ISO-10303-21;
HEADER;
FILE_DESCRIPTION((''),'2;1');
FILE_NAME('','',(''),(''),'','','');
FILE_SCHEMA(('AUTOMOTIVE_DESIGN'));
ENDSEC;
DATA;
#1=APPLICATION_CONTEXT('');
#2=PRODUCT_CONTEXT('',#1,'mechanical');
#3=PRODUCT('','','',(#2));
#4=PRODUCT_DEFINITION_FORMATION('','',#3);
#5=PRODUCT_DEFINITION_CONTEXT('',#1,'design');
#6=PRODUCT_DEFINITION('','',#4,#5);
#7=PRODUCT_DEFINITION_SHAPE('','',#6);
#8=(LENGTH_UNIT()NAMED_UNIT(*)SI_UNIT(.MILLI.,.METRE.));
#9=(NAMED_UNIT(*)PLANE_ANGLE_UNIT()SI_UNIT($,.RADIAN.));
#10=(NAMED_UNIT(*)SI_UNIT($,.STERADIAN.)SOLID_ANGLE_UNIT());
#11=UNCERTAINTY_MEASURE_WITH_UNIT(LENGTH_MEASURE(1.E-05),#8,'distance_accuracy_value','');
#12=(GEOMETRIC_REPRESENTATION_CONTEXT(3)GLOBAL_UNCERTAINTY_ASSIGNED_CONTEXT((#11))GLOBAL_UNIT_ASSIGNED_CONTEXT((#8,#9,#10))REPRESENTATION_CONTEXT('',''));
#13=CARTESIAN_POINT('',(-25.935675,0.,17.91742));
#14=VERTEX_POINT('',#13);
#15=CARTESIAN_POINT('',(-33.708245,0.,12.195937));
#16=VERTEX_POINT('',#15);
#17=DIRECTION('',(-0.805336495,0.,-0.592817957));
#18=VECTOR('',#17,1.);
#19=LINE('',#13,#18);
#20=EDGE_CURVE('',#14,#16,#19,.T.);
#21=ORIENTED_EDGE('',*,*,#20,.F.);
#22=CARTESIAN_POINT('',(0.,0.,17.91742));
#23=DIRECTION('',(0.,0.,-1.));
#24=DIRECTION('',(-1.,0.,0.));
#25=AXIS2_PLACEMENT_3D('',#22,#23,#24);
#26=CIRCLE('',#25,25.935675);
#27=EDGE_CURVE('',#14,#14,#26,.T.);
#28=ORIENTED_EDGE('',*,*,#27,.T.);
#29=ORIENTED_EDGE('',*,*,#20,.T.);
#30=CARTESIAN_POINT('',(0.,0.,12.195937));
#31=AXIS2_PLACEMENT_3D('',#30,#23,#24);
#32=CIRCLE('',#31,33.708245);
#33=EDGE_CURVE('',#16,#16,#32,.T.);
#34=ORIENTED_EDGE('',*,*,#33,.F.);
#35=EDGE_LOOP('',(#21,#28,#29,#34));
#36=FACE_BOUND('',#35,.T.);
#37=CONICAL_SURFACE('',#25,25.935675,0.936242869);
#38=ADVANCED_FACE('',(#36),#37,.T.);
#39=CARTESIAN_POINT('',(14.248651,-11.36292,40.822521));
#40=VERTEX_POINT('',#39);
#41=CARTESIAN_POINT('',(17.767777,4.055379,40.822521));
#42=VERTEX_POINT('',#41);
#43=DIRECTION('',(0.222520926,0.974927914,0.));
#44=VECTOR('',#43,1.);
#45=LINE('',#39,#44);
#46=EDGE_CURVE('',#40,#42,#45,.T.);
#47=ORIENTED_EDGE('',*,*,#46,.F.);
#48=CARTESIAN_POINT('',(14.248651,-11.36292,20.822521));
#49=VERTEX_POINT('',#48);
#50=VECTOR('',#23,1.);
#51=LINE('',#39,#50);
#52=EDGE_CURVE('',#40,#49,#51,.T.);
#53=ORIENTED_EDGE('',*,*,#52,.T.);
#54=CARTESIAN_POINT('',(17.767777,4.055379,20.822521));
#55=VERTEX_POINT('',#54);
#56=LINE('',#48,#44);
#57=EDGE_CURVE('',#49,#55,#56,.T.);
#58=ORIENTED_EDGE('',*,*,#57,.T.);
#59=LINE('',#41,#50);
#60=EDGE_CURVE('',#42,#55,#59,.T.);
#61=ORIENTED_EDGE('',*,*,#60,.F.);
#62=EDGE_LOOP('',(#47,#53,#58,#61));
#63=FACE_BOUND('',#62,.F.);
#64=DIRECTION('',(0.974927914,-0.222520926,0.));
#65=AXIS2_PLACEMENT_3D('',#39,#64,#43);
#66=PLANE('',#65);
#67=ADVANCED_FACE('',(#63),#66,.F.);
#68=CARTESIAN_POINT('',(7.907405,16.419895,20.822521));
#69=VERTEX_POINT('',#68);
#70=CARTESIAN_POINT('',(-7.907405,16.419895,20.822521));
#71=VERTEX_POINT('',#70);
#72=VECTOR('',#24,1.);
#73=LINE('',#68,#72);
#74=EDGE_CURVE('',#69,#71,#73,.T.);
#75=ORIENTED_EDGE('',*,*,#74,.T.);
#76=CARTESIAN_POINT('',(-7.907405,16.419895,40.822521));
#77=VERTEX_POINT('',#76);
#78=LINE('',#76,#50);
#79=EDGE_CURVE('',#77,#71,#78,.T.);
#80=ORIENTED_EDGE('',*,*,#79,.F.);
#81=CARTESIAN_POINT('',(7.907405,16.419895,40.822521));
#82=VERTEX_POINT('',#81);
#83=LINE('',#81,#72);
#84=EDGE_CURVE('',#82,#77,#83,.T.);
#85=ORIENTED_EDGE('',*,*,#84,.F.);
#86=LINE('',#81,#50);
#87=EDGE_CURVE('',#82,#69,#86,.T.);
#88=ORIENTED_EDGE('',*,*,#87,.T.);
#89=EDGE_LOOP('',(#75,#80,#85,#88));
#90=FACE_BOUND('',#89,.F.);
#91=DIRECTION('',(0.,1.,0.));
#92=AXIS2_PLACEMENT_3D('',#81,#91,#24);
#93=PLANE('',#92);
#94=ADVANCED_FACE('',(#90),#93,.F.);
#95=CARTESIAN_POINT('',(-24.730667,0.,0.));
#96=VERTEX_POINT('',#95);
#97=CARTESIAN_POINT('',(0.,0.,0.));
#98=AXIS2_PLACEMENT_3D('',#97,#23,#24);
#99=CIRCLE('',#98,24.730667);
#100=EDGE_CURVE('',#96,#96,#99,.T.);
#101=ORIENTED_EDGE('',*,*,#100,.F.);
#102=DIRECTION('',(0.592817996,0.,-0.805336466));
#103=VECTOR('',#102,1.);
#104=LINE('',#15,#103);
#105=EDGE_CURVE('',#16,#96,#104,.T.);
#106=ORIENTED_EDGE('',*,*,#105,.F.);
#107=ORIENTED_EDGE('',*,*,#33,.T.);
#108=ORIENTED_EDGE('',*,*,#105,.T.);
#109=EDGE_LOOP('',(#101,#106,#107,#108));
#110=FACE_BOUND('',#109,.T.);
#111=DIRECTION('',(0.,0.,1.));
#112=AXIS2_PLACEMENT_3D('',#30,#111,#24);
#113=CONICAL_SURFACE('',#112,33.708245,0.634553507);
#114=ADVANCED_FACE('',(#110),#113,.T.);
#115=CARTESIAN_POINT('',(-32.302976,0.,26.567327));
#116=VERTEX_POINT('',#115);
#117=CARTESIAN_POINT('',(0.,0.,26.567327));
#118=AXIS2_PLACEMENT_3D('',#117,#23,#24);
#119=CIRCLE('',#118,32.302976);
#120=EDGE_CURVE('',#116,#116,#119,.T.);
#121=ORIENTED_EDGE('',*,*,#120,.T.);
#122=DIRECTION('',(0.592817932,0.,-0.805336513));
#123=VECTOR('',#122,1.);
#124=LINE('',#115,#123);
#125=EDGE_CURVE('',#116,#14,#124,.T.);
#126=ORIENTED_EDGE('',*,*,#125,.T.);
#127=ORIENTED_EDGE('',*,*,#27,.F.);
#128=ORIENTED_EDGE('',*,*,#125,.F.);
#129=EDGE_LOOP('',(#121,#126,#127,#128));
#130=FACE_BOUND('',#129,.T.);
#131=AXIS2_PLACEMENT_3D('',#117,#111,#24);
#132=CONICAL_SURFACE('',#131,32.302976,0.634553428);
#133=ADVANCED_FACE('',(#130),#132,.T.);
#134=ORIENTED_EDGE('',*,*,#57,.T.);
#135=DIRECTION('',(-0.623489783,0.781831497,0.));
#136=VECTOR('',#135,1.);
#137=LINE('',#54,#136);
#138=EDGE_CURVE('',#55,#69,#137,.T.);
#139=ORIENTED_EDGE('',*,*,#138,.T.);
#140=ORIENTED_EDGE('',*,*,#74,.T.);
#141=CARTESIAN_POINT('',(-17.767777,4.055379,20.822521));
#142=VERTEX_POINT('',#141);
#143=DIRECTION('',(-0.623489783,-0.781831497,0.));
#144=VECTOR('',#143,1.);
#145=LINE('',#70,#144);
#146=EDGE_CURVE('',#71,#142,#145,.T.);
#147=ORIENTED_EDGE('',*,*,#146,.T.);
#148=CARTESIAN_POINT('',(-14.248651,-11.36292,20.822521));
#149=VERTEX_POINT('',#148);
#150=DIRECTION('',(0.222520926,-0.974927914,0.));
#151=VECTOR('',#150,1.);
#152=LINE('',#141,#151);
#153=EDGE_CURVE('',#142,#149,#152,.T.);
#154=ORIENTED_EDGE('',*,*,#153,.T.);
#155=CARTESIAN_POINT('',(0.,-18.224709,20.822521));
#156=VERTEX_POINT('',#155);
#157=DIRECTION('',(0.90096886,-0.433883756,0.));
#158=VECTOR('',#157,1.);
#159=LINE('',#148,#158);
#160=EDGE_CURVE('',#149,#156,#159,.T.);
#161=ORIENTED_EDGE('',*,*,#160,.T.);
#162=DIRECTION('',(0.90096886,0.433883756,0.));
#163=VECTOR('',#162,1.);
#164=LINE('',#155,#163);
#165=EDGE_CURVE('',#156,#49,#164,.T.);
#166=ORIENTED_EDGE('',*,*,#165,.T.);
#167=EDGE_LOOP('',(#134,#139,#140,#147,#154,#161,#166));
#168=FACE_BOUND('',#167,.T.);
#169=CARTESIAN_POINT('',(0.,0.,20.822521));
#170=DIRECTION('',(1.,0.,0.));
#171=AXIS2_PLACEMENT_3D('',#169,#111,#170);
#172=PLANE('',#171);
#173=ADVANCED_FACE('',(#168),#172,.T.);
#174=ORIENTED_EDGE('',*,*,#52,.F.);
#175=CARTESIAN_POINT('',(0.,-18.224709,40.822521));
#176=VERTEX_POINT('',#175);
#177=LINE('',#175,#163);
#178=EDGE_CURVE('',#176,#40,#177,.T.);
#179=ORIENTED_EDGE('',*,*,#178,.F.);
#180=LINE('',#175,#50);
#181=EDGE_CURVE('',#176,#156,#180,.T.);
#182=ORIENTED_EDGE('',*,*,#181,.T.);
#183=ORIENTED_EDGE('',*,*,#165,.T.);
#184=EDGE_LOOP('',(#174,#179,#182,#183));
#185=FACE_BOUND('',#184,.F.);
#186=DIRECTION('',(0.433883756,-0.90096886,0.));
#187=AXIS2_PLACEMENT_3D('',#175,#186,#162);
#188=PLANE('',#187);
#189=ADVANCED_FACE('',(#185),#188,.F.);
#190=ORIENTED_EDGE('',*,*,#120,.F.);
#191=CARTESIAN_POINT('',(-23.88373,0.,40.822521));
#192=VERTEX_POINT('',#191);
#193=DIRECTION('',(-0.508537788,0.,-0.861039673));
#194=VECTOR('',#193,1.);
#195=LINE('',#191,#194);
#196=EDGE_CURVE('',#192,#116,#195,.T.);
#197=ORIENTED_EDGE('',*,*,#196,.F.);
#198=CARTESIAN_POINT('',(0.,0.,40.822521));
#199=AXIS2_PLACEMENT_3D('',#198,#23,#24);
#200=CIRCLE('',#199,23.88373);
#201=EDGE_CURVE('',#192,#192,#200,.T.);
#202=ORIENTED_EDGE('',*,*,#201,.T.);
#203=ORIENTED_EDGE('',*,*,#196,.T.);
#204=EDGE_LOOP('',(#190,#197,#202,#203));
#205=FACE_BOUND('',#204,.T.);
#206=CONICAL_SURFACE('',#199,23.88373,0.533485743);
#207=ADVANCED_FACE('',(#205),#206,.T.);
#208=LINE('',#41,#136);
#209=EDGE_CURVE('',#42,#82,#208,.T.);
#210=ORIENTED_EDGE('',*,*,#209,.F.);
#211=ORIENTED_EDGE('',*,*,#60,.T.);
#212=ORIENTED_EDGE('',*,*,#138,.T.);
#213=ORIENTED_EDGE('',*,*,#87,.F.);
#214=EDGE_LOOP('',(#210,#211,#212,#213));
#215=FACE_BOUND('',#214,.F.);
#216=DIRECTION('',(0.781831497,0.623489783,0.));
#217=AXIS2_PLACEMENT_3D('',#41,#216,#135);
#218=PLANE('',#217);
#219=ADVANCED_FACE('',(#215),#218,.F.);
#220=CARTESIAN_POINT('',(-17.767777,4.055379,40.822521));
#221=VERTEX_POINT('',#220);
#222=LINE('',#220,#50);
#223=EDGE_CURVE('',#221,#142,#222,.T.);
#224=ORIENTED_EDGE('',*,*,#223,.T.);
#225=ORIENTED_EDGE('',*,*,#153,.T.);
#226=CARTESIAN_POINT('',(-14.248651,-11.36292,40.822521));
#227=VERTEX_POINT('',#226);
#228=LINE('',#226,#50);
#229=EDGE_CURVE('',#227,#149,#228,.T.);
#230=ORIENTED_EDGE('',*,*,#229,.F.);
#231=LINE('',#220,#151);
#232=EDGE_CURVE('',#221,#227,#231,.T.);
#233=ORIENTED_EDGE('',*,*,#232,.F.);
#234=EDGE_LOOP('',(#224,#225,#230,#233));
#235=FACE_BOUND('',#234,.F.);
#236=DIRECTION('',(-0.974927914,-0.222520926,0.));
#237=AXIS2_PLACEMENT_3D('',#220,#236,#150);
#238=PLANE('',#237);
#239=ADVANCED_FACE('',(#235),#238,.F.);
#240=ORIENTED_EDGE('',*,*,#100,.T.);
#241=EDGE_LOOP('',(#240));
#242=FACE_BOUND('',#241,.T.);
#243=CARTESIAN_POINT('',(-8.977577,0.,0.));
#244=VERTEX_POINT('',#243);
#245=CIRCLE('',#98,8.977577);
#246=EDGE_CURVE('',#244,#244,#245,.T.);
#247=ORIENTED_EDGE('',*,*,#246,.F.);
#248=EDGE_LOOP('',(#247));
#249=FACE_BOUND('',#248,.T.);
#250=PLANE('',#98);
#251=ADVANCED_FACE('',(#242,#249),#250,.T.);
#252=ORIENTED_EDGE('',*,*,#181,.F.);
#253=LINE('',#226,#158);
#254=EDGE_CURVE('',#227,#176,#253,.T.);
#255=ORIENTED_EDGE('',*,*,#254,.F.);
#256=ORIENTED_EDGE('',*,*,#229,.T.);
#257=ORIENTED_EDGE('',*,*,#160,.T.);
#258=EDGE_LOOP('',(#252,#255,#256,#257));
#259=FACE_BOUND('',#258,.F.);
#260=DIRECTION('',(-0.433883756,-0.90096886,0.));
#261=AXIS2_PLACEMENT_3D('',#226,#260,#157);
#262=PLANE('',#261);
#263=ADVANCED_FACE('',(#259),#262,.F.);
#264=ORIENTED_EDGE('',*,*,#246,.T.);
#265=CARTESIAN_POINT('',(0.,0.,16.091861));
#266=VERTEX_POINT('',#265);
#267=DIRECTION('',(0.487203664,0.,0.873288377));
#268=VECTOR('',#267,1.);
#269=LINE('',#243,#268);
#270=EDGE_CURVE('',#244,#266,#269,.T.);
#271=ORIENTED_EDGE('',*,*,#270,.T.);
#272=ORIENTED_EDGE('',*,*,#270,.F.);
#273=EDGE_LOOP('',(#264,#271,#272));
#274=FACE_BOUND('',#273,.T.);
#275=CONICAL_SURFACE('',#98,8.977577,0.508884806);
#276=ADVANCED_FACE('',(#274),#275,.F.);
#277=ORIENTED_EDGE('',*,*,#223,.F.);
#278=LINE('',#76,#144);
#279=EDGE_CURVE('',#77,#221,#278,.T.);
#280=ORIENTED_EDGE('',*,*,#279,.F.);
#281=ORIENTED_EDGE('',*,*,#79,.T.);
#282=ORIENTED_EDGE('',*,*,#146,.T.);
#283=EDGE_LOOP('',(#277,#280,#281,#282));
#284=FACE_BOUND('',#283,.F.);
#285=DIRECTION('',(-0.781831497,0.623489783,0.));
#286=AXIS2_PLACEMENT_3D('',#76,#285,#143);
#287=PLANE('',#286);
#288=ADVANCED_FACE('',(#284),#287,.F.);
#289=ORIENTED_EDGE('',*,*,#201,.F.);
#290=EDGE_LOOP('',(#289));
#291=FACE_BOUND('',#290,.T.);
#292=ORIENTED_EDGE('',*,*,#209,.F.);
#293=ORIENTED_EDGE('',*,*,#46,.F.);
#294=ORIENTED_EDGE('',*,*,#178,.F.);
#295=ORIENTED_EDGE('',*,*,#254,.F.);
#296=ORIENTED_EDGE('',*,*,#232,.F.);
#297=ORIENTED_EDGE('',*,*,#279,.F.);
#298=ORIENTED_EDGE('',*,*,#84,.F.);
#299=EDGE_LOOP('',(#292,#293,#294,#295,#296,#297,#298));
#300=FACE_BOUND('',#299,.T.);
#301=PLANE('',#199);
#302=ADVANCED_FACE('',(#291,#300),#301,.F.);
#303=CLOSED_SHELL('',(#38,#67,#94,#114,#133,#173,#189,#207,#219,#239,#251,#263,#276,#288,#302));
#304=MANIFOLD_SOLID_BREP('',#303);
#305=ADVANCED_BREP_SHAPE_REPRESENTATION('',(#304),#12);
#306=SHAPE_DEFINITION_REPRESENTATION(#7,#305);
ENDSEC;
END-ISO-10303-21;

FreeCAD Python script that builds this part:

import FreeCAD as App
import Part
import Sketcher
from FreeCAD import Vector
Q = App.Units.Quantity


def add_polygon(sketch, points):
    """Adds a closed chain of lines whose ends are joined by coincident constraints."""
    first, n = sketch.GeometryCount, len(points)
    for a, b in zip(points, points[1:] + points[:1]):
        sketch.addGeometry(Part.LineSegment(App.Vector(*a, 0), App.Vector(*b, 0)), False)
    for i in range(n):
        sketch.addConstraint(Sketcher.Constraint("Coincident", first + i, 2, first + (i + 1) % n, 1))

doc = App.newDocument("Part")
body = doc.addObject("PartDesign::Body", "Body")

sketch1 = doc.addObject("Sketcher::SketchObject", "Sketch")
body.addObject(sketch1)
sketch1.AttachmentSupport = (doc.XZ_Plane, [""])
sketch1.MapMode = "FlatFace"
add_polygon(sketch1, [(-9, 0), (0, 16), (0, 41), (-24, 41), (-32, 27), (-26, 18), (-34, 12), (-25, 0)])
sketch1.addConstraint([
    Sketcher.Constraint("Vertical", 1),
    Sketcher.Constraint("Horizontal", 2),
    Sketcher.Constraint("Horizontal", 7),
    Sketcher.Constraint("PointOnObject", 0, 2, -2),
    Sketcher.Constraint("PointOnObject", 6, 2, -1),
    Sketcher.Constraint("Perpendicular", 4, 5),
    Sketcher.Constraint("Perpendicular", 5, 6),
    Sketcher.Constraint("DistanceX", 2, 2, 2, 1, Q("23.88373 mm")),
    Sketcher.Constraint("DistanceX", 7, 1, 7, 2, Q("15.75309 mm")),
    Sketcher.Constraint("DistanceY", 1, 1, 1, 2, Q("24.73066 mm")),
    Sketcher.Constraint("DistanceX", 3, 2, 4, 2, Q("6.367301 mm")),
    Sketcher.Constraint("DistanceY", 4, 2, 2, 2, Q("22.905101 mm")),
    Sketcher.Constraint("DistanceX", 3, 2, 7, 2, Q("23.325399 mm")),
    Sketcher.Constraint("DistanceY", -1, 1, 0, 2, Q("16.091861 mm")),
    Sketcher.Constraint("DistanceX", 5, 2, 4, 2, Q("7.77257 mm")),
    Sketcher.Constraint("Distance", 0, Q("18.426744 mm")),
])
revolution = doc.addObject("PartDesign::Revolution", "Revolution")
body.addObject(revolution)
revolution.Profile = sketch1
revolution.ReferenceAxis = (sketch1, ["V_Axis"])
revolution.Angle = 360

sketch2 = doc.addObject("Sketcher::SketchObject", "Sketch001")
body.addObject(sketch2)
sketch2.AttachmentSupport = (doc.XY_Plane, [""])
sketch2.MapMode = "FlatFace"
sketch2.AttachmentOffset = App.Placement(Vector(0, 0, 40.822521), App.Rotation())
add_polygon(sketch2, [(8, 16), (-8, 16), (-18, 4), (-14, -11), (0, -18), (14, -11), (18, 4)])
sketch2.addConstraint([
    Sketcher.Constraint("Horizontal", 0),
    Sketcher.Constraint("Symmetric", 2, 2, 4, 2, -2),
    Sketcher.Constraint("Symmetric", 1, 2, 5, 2, -2),
    Sketcher.Constraint("PointOnObject", 3, 2, -2),
    Sketcher.Constraint("Equal", 1, 2),
    Sketcher.Constraint("Equal", 2, 3),
    Sketcher.Constraint("Equal", 5, 6),
    Sketcher.Constraint("DistanceX", 0, 2, 0, 1, Q("15.81481 mm")),
    Sketcher.Constraint("DistanceY", 2, 2, 1, 2, Q("15.418299 mm")),
    Sketcher.Constraint("Distance", 1, Q("15.814809 mm")),
    Sketcher.Constraint("DistanceY", -1, 1, 1, 2, Q("4.055379 mm")),
    Sketcher.Constraint("DistanceX", 2, 2, -1, 1, Q("14.248651 mm")),
])
pocket1 = doc.addObject("PartDesign::Pocket", "Pocket")
body.addObject(pocket1)
pocket1.Profile = sketch2
pocket1.Length = 20

doc.recompute()
